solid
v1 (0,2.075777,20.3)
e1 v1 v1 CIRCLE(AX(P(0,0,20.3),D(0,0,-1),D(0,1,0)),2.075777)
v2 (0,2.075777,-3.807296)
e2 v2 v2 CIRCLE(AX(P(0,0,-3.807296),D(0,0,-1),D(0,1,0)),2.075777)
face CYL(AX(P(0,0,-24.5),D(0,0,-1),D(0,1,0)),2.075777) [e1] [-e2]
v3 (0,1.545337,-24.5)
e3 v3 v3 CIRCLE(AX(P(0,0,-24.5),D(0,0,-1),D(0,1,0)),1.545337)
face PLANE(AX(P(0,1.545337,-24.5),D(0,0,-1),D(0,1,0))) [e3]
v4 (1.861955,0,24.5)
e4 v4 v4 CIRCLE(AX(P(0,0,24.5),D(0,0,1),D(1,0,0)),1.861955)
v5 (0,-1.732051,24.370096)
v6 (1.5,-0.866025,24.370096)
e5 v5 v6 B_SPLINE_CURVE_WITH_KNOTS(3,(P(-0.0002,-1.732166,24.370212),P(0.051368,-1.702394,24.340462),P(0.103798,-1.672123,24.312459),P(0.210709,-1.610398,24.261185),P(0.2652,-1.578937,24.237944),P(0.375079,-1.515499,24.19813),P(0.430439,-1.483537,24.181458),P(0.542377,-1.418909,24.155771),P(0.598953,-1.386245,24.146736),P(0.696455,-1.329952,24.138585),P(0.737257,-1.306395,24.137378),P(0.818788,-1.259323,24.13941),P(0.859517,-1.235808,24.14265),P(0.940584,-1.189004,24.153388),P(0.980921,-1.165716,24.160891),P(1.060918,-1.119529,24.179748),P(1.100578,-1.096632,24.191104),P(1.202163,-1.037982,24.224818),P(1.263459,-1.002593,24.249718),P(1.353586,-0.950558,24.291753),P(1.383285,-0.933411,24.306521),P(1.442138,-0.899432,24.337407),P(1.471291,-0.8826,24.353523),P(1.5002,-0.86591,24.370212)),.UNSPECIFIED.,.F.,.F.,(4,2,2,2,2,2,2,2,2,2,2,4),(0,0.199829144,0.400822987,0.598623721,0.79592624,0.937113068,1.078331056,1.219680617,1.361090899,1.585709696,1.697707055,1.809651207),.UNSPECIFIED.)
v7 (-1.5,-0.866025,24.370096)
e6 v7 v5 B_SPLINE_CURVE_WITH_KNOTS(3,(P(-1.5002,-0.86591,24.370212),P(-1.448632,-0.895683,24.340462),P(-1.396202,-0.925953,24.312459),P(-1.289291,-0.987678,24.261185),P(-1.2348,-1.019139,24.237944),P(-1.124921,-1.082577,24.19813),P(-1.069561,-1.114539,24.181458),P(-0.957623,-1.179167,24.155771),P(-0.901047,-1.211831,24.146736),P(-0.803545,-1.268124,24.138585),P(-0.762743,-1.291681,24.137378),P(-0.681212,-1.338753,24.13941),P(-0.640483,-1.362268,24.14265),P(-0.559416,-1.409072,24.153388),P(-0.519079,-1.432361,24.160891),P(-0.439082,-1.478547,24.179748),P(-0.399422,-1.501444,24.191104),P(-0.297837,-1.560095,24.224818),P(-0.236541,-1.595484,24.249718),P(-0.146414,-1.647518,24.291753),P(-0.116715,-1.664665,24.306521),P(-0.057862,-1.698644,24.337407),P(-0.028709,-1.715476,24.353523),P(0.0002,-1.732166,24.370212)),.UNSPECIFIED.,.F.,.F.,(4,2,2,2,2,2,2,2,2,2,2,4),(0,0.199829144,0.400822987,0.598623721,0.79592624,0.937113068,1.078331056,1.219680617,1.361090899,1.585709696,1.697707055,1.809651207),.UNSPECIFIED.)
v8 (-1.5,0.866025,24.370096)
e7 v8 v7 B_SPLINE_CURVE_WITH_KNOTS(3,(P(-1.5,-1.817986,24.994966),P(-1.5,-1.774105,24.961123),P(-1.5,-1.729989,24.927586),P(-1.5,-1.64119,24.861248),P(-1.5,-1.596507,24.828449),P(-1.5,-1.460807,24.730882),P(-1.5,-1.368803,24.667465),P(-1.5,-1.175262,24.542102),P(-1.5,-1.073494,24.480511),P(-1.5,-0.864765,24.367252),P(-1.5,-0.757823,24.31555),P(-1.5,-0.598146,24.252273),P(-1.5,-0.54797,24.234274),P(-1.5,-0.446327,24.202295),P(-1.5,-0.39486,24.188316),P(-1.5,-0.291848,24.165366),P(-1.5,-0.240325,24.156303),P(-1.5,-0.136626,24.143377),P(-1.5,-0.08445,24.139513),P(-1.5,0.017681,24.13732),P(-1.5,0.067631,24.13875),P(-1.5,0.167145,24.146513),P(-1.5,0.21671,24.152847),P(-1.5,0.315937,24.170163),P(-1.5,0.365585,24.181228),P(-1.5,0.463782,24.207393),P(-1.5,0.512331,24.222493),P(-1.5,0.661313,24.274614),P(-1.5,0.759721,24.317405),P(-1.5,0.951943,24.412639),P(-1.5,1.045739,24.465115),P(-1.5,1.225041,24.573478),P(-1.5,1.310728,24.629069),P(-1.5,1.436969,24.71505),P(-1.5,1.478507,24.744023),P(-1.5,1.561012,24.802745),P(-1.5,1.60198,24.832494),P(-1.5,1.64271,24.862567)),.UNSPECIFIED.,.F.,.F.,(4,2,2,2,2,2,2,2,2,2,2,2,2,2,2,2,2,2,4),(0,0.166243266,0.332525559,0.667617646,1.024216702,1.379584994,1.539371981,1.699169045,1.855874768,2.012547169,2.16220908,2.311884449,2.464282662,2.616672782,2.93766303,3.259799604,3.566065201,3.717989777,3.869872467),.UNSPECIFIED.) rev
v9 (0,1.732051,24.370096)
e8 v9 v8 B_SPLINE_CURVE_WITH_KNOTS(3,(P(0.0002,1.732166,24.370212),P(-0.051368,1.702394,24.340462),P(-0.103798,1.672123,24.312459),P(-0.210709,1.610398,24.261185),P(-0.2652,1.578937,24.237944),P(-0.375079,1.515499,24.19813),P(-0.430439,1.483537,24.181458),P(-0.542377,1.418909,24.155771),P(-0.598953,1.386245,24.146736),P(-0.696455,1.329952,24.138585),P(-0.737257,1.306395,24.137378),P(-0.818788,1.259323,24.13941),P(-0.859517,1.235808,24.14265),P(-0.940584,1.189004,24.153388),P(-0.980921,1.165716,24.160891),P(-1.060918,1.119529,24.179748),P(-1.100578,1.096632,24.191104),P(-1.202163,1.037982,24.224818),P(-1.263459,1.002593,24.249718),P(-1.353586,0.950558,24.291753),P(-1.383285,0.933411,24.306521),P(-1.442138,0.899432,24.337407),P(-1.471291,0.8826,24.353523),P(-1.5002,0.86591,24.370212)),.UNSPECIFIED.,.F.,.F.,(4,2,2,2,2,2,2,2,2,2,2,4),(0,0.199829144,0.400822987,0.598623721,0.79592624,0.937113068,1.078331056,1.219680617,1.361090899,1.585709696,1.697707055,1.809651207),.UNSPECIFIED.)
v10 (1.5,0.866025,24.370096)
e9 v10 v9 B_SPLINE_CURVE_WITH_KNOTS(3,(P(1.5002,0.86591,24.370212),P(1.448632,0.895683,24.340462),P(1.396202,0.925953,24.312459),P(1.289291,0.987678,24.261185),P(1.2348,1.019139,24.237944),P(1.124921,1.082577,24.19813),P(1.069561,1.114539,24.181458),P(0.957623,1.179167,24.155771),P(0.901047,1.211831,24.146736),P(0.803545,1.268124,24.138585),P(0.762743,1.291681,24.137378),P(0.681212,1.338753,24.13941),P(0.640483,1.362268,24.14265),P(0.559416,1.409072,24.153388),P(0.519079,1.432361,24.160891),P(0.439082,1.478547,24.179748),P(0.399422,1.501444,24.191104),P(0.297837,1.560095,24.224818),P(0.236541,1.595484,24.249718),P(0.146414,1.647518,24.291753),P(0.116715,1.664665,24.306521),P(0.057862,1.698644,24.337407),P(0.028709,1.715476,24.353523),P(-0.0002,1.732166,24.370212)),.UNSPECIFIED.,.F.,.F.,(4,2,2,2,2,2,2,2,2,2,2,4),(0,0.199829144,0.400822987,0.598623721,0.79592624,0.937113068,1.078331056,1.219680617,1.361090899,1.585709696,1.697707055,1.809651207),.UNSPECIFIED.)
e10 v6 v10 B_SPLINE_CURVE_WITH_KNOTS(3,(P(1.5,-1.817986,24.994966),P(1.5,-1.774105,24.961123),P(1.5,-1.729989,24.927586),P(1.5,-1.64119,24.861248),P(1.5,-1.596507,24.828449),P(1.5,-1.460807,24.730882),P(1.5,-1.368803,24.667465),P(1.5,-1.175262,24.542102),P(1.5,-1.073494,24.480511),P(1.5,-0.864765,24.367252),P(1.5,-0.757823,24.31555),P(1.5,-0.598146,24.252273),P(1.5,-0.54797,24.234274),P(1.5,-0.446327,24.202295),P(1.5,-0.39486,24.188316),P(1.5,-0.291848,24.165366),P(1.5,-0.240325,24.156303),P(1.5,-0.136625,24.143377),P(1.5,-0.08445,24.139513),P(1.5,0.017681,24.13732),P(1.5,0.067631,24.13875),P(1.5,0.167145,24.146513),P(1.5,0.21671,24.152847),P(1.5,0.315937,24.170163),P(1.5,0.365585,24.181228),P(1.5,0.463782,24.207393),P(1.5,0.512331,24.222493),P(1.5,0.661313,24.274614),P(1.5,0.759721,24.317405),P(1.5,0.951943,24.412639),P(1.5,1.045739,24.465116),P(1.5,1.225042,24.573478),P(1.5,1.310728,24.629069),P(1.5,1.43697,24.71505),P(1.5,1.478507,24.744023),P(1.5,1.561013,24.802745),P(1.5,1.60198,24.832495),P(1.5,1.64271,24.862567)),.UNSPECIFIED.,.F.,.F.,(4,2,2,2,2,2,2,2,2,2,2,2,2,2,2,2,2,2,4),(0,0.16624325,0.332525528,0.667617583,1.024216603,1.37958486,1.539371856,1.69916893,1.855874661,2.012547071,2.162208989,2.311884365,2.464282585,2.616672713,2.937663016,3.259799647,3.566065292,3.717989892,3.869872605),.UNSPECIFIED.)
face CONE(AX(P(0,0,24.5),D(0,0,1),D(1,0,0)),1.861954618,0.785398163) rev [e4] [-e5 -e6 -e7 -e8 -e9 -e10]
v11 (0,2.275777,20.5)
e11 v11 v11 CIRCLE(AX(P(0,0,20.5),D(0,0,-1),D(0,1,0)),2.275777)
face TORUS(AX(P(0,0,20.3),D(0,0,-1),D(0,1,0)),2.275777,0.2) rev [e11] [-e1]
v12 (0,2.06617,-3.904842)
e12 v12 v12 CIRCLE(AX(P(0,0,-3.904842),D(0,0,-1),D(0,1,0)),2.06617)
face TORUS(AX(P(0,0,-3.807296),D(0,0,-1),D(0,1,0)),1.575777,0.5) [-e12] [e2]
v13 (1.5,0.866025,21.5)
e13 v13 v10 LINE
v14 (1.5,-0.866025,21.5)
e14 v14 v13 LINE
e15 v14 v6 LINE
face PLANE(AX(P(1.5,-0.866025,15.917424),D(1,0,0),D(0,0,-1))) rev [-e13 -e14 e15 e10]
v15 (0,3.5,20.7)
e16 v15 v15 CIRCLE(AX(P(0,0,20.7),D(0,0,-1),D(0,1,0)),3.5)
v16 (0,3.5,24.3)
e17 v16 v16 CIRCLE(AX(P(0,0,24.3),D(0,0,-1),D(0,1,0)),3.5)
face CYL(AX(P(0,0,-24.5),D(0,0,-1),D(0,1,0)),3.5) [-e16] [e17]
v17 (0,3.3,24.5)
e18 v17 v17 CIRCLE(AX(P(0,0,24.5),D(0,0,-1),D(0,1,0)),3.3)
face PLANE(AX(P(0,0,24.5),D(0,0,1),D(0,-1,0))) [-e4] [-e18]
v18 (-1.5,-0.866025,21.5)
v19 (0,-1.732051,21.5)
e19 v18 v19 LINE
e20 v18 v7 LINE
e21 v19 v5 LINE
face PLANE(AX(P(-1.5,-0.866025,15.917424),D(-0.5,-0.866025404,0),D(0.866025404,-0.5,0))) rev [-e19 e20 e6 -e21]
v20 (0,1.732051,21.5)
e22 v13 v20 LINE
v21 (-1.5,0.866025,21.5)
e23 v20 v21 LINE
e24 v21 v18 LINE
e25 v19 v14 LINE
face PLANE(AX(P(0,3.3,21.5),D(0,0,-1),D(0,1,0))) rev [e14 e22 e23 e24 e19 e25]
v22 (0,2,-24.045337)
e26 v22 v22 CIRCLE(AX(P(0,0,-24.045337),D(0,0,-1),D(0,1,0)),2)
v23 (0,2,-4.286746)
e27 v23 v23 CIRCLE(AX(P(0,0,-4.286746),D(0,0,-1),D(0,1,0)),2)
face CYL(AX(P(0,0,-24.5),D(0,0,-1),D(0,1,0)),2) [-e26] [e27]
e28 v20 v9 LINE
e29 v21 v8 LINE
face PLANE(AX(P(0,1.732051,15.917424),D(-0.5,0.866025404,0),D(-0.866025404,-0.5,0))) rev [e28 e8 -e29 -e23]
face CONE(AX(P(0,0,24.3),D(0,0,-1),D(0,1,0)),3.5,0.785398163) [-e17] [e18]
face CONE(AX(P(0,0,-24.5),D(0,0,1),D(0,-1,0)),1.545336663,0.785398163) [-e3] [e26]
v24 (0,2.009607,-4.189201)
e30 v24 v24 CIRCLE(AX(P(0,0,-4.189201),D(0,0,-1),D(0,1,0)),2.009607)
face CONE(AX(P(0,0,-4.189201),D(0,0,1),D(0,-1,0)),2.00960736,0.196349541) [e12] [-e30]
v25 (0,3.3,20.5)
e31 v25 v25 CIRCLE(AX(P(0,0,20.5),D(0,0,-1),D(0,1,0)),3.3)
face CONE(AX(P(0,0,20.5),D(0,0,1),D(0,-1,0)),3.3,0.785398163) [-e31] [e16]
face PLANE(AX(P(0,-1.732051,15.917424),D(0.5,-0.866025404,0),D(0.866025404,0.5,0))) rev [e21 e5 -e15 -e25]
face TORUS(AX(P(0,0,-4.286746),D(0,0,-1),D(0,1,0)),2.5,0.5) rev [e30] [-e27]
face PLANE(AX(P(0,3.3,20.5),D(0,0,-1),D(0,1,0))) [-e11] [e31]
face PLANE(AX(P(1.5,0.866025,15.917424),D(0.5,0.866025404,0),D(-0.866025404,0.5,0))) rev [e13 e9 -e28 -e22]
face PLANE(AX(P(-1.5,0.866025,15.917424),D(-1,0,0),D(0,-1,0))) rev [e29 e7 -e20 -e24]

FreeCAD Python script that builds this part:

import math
import FreeCAD as App
import Part
import Sketcher
Q = App.Units.Quantity


def faces_at(feature, points):
    """Names of the faces that lie closest to the given points."""
    faces = feature.Shape.Faces
    near = lambda p: min(range(len(faces)), key=lambda i: faces[i].distToShape(Part.Vertex(*p))[0])
    return sorted({f"Face{near(p) + 1}" for p in points})


def add_polygon(sketch, points):
    """Adds a closed chain of lines whose ends are joined by coincident constraints."""
    first, n = sketch.GeometryCount, len(points)
    for a, b in zip(points, points[1:] + points[:1]):
        sketch.addGeometry(Part.LineSegment(App.Vector(*a, 0), App.Vector(*b, 0)), False)
    for i in range(n):
        sketch.addConstraint(Sketcher.Constraint("Coincident", first + i, 2, first + (i + 1) % n, 1))

doc = App.newDocument("Part")
params = doc.addObject("Spreadsheet::Sheet", "Params")
for row, (alias, value) in enumerate([
    ("sketch1_radius", "0.5 mm"),
    ("sketch1_radius2", "0.2 mm"),
    ("sketch1_height", "49 mm"),
    ("sketch1_width", "3.3 mm"),
    ("sketch1_height2", "3.6 mm"),
    ("revolution_angle", "360 deg"),
    ("pocket1_length", "3 mm"),
    ("pad1_length", "3 mm"),
    ("draft_angle", "45 deg"),
], start=1):
    params.set(f"A{row}", alias)
    params.set(f"B{row}", "=" + value)
    params.setAlias(f"B{row}", alias)

body = doc.addObject("PartDesign::Body", "Body")

# Sketch on YZ plane
sketch1 = body.newObject("Sketcher::SketchObject", "Sketch")
sketch1.AttachmentSupport = (doc.getObject("YZ_Plane"), [""])
sketch1.MapMode = "FlatFace"
sketch1.addGeometry([
    Part.LineSegment(App.Vector(3.3, 24.5, 0), App.Vector(0, 24.5, 0)),  # 0
    Part.LineSegment(App.Vector(0, 24.5, 0), App.Vector(0, -24.5, 0)),  # 1
    Part.LineSegment(App.Vector(0, -24.5, 0), App.Vector(1.545337, -24.5, 0)),  # 2
    Part.LineSegment(App.Vector(1.545337, -24.5, 0), App.Vector(2, -24.045337, 0)),  # 3
    Part.LineSegment(App.Vector(2, -24.045337, 0), App.Vector(2, -4.286746, 0)),  # 4
    Part.ArcOfCircle(Part.Circle(App.Vector(2.5, -4.286746, 0), App.Vector(0, 0, 1), 0.5), math.radians(168.75), math.radians(179.999999)),  # 5
    Part.LineSegment(App.Vector(2.009607, -4.189201, 0), App.Vector(2.06617, -3.904842, 0)),  # 6
    Part.ArcOfCircle(Part.Circle(App.Vector(1.575777, -3.807296, 0), App.Vector(0, 0, 1), 0.5), math.radians(-11.25), math.radians(0)),  # 7
    Part.LineSegment(App.Vector(2.075777, -3.807296, 0), App.Vector(2.075777, 20.3, 0)),  # 8
    Part.ArcOfCircle(Part.Circle(App.Vector(2.275777, 20.3, 0), App.Vector(0, 0, 1), 0.2), math.radians(90), math.radians(180)),  # 9
    Part.LineSegment(App.Vector(2.275777, 20.5, 0), App.Vector(3.3, 20.5, 0)),  # 10
    Part.LineSegment(App.Vector(3.3, 20.5, 0), App.Vector(3.5, 20.7, 0)),  # 11
    Part.LineSegment(App.Vector(3.5, 20.7, 0), App.Vector(3.5, 24.3, 0)),  # 12
    Part.LineSegment(App.Vector(3.5, 24.3, 0), App.Vector(3.3, 24.5, 0)),  # 13
], False)
sketch1.addConstraint([
    Sketcher.Constraint("Coincident", 0, 2, 1, 1),
    Sketcher.Constraint("Coincident", 1, 2, 2, 1),
    Sketcher.Constraint("Coincident", 2, 2, 3, 1),
    Sketcher.Constraint("Coincident", 3, 2, 4, 1),
    Sketcher.Constraint("Tangent", 4, 2, 5, 2),
    Sketcher.Constraint("Tangent", 5, 1, 6, 1),
    Sketcher.Constraint("Tangent", 6, 2, 7, 1),
    Sketcher.Constraint("Tangent", 7, 2, 8, 1),
    Sketcher.Constraint("Tangent", 8, 2, 9, 2),
    Sketcher.Constraint("Tangent", 9, 1, 10, 1),
    Sketcher.Constraint("Coincident", 10, 2, 11, 1),
    Sketcher.Constraint("Coincident", 11, 2, 12, 1),
    Sketcher.Constraint("Coincident", 12, 2, 13, 1),
    Sketcher.Constraint("Coincident", 13, 2, 0, 1),
    Sketcher.Constraint("Horizontal", 0),
    Sketcher.Constraint("Vertical", 1),
    Sketcher.Constraint("Horizontal", 2),
    Sketcher.Constraint("Vertical", 4),
    Sketcher.Constraint("Vertical", 8),
    Sketcher.Constraint("Horizontal", 10),
    Sketcher.Constraint("Vertical", 12),
    Sketcher.Constraint("Equal", 5, 7),
    Sketcher.Constraint("Symmetric", 0, 2, 1, 2, -1, 1),
    Sketcher.Constraint("Parallel", 3, 11),
    Sketcher.Constraint("Perpendicular", 11, 13),
    Sketcher.Constraint("Vertical", 10, 2, 13, 2),
    Sketcher.Constraint("Equal", 11, 13),
    Sketcher.Constraint("Radius", 5, Q("0.5 mm")),
    Sketcher.Constraint("Radius", 9, Q("0.2 mm")),
    Sketcher.Constraint("DistanceY", 1, 2, 1, 1, Q("49 mm")),
    Sketcher.Constraint("DistanceX", 0, 2, 0, 1, Q("3.3 mm")),
    Sketcher.Constraint("DistanceY", 12, 1, 12, 2, Q("3.6 mm")),
    Sketcher.Constraint("DistanceX", -1, 1, 3, 2, Q("2 mm")),
    Sketcher.Constraint("DistanceY", 9, 1, 0, 2, Q("4 mm")),
    Sketcher.Constraint("Angle", 6, Q("78.75 deg")),
    Sketcher.Constraint("DistanceY", 4, 1, 4, 2, Q("19.758591 mm")),
    Sketcher.Constraint("DistanceY", 5, 1, -1, 1, Q("4.189201 mm")),
    Sketcher.Constraint("Distance", 6, Q("0.28993 mm")),
])
sketch1.setExpression("Constraints[27]", "Params.sketch1_radius")
sketch1.setExpression("Constraints[28]", "Params.sketch1_radius2")
sketch1.setExpression("Constraints[29]", "Params.sketch1_height")
sketch1.setExpression("Constraints[30]", "Params.sketch1_width")
sketch1.setExpression("Constraints[31]", "Params.sketch1_height2")
revolution = body.newObject("PartDesign::Revolution", "Revolution")
revolution.Profile = sketch1
revolution.ReferenceAxis = (sketch1, ["V_Axis"])
revolution.setExpression("Angle", "Params.revolution_angle")

# Sketch on XY plane
sketch2 = body.newObject("Sketcher::SketchObject", "Sketch001")
sketch2.AttachmentSupport = (doc.getObject("XY_Plane"), [""])
sketch2.MapMode = "FlatFace"
sketch2.AttachmentOffset = App.Placement(App.Vector(0, 0, 24.5), App.Rotation())
add_polygon(sketch2, [(1.5, -0.866025), (1.5, 0.866025), (0, 1.732051), (-1.5, 0.866025), (-1.5, -0.866025), (0, -1.732051)])  # lines 0-5
sketch2.addConstraint([
    Sketcher.Constraint("Vertical", 0),
    Sketcher.Constraint("Vertical", 3),
    Sketcher.Constraint("Symmetric", 0, 2, 3, 2, -1, 1),
    Sketcher.Constraint("Symmetric", 1, 2, 4, 2, -1, 1),
    Sketcher.Constraint("PointOnObject", 1, 2, -2),
    Sketcher.Constraint("Parallel", 2, 5),
    Sketcher.Constraint("Horizontal", 0, 2, 2, 2),
    Sketcher.Constraint("Angle", 1, Q("150 deg")),
    Sketcher.Constraint("DistanceX", 2, 2, 0, 2, Q("3 mm")),
    Sketcher.Constraint("DistanceY", 0, 1, 0, 2, Q("1.732051 mm")),
])
pocket1 = body.newObject("PartDesign::Pocket", "Pocket")
pocket1.Profile = sketch2
pocket1.setExpression("Length", "Params.pocket1_length")
body2 = doc.addObject("PartDesign::Body", "Body001")

# Sketch on XY plane
sketch3 = body2.newObject("Sketcher::SketchObject", "Sketch002")
sketch3.AttachmentSupport = (doc.getObject("XY_Plane001"), [""])
sketch3.MapMode = "FlatFace"
sketch3.AttachmentOffset = App.Placement(App.Vector(0, 0, 24.5), App.Rotation())
sketch3.addGeometry(Part.Circle(App.Vector(0, 0, 0), App.Vector(0, 0, 1), 1.861955), False)
sketch3.addConstraint([
    Sketcher.Constraint("Coincident", 0, 3, -1, 1),
    Sketcher.Constraint("Diameter", 0, Q("3.723909 mm")),
])
pad1 = body2.newObject("PartDesign::Pad", "Pad")
pad1.Profile = sketch3
pad1.setExpression("Length", "Params.pad1_length")
pad1.Reversed = True
doc.recompute()

datumplane = body2.newObject("PartDesign::Plane", "DatumPlane")
datumplane.AttachmentSupport = (doc.getObject("XY_Plane001"), [""])
datumplane.MapMode = "FlatFace"
datumplane.AttachmentOffset = App.Placement(App.Vector(0, 0, 24.5), App.Rotation())
draft = body2.newObject("PartDesign::Draft", "Draft")
draft.Base = (pad1, faces_at(pad1, [(-1.862, 0, 23)]))
draft.NeutralPlane = (datumplane, [""])
draft.setExpression("Angle", "Params.draft_angle")
draft.Reversed = True
doc.recompute()

boolean = body.newObject("PartDesign::Boolean", "Boolean")
boolean.Type = "Cut"
boolean.addObjects([body2])

doc.recompute()
